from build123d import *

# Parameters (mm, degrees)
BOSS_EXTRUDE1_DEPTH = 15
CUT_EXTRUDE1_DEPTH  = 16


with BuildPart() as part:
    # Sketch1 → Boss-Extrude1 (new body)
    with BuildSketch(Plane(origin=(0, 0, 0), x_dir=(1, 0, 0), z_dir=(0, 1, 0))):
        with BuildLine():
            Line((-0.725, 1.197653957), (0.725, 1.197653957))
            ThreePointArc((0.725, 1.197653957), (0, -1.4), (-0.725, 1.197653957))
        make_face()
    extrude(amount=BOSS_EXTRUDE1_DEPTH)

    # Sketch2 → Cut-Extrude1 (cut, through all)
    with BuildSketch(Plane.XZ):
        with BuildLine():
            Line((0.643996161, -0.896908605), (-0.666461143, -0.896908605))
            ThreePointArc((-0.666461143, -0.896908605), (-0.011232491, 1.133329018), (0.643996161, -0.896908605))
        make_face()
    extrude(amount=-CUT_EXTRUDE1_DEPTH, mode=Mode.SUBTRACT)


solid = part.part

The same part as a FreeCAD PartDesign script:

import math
import FreeCAD as App
import Part
import Sketcher
from FreeCAD import Vector

doc = App.newDocument("Part")
params = doc.addObject("Spreadsheet::Sheet", "Params")
for row, (alias, value) in enumerate([
    ("sketch1_radius", "1.4 mm"),
    ("sketch1_width", "1.45 mm"),
    ("pad1_length", "15 mm"),
], start=1):
    params.set(f"A{row}", alias)
    params.set(f"B{row}", "=" + value)
    params.setAlias(f"B{row}", alias)

body = doc.addObject("PartDesign::Body", "Body")

# Sketch on XZ plane
sketch1 = body.newObject("Sketcher::SketchObject", "Sketch")
sketch1.AttachmentSupport = (doc.getObject("XZ_Plane"), [""])
sketch1.MapMode = "FlatFace"
sketch1.addGeometry(Part.LineSegment(Vector(0.725, -1.197654, 0), Vector(-0.725, -1.197654, 0)), False)
sketch1.addGeometry(Part.ArcOfCircle(Part.Circle(Vector(0, 0, 0), Vector(0, 0, 1), 1.4), math.radians(-58.811378), math.radians(238.811378)), False)
sketch1.addConstraint(Sketcher.Constraint("Coincident", 0, 1, 1, 1))
sketch1.addConstraint(Sketcher.Constraint("Coincident", 1, 2, 0, 2))
sketch1.addConstraint(Sketcher.Constraint("Horizontal", 0))
sketch1.addConstraint(Sketcher.Constraint("Coincident", 1, 3, -1, 1))
sketch1.addConstraint(Sketcher.Constraint("Radius", 1, 1.4))
sketch1.addConstraint(Sketcher.Constraint("DistanceX", 0, 2, 0, 1, 1.45))
sketch1.setExpression("Constraints[4]", "Params.sketch1_radius")
sketch1.setExpression("Constraints[5]", "Params.sketch1_width")
pad1 = body.newObject("PartDesign::Pad", "Pad")
pad1.Profile = sketch1
pad1.setExpression("Length", "Params.pad1_length")
pad1.Reversed = True

# Sketch on XZ plane
sketch2 = body.newObject("Sketcher::SketchObject", "Sketch001")
sketch2.AttachmentSupport = (doc.getObject("XZ_Plane"), [""])
sketch2.MapMode = "FlatFace"
sketch2.addGeometry(Part.LineSegment(Vector(-0.666461, -0.896909, 0), Vector(0.643996, -0.896909, 0)), False)
sketch2.addGeometry(Part.ArcOfCircle(Part.Circle(Vector(-0.011232, 0.012478, 0), Vector(0, 0, 1), 1.120851), math.radians(-54.226591), math.radians(234.226591)), False)
sketch2.addConstraint(Sketcher.Constraint("Coincident", 0, 1, 1, 2))
sketch2.addConstraint(Sketcher.Constraint("Coincident", 1, 1, 0, 2))
sketch2.addConstraint(Sketcher.Constraint("Horizontal", 0))
sketch2.addConstraint(Sketcher.Constraint("Radius", 1, 1.120851))
sketch2.addConstraint(Sketcher.Constraint("DistanceX", 0, 1, 0, 2, 1.310457))
sketch2.addConstraint(Sketcher.Constraint("DistanceX", 0, 1, -1, 1, 0.666461))
sketch2.addConstraint(Sketcher.Constraint("DistanceY", 0, 1, -1, 1, 0.896909))
pocket1 = body.newObject("PartDesign::Pocket", "Pocket")
pocket1.Profile = sketch2
pocket1.Type = "ThroughAll"

doc.recompute()
